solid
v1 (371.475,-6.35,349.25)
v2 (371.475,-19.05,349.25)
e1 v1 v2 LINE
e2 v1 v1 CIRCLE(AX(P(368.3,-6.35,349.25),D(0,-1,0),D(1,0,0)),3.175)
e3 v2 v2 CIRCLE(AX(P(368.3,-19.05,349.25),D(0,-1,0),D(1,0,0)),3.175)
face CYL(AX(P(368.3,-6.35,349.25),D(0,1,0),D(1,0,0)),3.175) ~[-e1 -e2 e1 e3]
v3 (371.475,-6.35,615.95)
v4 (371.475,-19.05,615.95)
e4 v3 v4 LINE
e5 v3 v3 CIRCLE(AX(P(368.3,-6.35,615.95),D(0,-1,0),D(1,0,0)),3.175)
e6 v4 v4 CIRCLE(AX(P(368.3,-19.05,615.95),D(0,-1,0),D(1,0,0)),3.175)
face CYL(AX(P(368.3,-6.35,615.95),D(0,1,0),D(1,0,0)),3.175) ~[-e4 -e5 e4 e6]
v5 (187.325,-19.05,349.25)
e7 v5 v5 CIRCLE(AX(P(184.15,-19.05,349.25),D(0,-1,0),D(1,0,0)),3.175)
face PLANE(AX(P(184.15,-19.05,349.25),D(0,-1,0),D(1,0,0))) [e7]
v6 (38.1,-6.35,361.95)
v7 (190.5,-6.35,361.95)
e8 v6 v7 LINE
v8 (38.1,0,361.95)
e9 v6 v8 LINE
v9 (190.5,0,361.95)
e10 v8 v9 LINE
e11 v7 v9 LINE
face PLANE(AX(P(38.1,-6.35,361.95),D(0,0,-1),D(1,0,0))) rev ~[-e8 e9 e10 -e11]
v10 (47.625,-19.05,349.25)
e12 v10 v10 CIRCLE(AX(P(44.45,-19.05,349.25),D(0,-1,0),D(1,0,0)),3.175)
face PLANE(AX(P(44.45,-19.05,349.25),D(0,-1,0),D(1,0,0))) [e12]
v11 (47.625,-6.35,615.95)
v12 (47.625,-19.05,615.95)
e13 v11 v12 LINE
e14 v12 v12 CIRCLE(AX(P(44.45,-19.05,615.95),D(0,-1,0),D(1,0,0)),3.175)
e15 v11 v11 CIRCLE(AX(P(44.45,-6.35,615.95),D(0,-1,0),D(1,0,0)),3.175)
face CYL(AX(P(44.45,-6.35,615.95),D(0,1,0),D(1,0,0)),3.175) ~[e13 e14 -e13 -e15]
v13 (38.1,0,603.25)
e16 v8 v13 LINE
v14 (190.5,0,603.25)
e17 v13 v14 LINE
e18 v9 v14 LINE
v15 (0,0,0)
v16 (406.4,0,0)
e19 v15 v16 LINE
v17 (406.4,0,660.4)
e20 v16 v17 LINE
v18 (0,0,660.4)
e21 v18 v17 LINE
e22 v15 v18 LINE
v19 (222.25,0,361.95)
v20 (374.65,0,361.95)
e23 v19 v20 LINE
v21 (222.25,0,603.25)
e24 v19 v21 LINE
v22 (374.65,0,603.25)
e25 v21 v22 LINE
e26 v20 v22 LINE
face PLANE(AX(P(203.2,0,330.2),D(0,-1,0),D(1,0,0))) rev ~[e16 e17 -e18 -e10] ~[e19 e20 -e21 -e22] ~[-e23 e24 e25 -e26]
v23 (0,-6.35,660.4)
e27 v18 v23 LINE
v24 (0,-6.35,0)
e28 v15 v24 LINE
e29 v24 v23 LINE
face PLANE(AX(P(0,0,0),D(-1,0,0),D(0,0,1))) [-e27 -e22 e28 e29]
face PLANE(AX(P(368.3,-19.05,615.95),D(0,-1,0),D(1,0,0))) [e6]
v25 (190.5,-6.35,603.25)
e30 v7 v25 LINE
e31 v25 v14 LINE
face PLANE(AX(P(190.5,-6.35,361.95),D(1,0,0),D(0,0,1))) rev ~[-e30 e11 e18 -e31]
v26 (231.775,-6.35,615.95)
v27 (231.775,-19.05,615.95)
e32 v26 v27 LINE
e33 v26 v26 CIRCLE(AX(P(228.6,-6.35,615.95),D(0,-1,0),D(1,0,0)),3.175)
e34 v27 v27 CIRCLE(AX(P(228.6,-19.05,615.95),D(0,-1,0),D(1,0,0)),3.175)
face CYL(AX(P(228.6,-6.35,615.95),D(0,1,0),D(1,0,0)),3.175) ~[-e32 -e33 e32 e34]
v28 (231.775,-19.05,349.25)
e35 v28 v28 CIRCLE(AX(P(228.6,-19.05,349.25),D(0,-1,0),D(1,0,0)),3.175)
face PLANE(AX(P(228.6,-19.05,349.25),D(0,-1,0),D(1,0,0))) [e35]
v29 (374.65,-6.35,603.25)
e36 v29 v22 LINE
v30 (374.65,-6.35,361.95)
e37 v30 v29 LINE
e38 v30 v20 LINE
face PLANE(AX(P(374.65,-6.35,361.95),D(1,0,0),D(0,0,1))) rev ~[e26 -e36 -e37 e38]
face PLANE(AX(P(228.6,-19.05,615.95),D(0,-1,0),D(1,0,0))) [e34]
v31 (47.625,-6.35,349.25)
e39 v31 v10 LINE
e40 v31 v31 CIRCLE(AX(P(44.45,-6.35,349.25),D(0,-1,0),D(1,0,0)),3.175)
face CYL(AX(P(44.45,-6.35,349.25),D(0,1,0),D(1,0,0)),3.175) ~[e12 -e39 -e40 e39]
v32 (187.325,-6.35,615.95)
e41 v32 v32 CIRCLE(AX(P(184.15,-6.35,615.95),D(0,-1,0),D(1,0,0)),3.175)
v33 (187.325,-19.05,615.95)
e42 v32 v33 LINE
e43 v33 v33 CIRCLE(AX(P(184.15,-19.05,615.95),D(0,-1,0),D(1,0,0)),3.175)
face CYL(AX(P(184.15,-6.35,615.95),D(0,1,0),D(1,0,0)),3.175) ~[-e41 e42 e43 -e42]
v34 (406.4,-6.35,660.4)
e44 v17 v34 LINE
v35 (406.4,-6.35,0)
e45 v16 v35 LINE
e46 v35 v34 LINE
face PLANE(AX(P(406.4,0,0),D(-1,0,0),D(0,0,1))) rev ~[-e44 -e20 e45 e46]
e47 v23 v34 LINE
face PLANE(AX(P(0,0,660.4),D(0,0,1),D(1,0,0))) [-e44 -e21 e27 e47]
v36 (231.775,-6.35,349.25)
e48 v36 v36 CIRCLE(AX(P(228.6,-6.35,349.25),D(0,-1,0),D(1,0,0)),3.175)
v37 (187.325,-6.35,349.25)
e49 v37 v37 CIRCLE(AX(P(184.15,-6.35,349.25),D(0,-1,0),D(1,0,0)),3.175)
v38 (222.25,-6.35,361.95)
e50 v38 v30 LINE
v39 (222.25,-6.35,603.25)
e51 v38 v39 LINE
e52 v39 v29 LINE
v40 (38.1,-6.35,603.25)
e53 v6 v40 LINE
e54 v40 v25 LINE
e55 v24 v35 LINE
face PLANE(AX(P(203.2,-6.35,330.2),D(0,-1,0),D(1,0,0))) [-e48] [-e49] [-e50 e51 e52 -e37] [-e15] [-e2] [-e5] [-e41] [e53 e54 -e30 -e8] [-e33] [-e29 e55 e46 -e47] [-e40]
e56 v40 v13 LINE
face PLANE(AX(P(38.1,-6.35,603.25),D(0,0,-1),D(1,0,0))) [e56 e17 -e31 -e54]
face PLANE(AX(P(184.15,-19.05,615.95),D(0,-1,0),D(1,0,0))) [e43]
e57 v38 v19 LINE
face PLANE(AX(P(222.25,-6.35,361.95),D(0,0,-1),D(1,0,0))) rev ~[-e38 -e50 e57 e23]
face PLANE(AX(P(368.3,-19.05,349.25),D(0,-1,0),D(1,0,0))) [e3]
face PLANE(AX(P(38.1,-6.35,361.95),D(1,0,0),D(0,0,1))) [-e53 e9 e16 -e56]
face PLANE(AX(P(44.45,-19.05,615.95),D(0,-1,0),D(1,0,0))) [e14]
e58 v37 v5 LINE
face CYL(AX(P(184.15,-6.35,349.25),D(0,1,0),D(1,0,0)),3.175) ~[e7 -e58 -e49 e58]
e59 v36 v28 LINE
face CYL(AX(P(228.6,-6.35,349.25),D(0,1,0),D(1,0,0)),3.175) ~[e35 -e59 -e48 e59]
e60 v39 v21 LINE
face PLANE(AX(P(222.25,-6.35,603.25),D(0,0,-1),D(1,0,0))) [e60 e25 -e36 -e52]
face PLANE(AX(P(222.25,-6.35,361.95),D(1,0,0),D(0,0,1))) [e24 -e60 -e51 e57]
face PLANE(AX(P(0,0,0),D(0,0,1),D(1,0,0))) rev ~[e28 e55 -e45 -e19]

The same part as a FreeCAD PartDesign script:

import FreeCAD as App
import Part
import Sketcher
from FreeCAD import Vector
Q = App.Units.Quantity


def add_polygon(sketch, points):
    """Adds a closed chain of lines whose ends are joined by coincident constraints."""
    first, n = sketch.GeometryCount, len(points)
    for a, b in zip(points, points[1:] + points[:1]):
        sketch.addGeometry(Part.LineSegment(App.Vector(*a, 0), App.Vector(*b, 0)), False)
    for i in range(n):
        sketch.addConstraint(Sketcher.Constraint("Coincident", first + i, 2, first + (i + 1) % n, 1))

doc = App.newDocument("Part")
body = doc.addObject("PartDesign::Body", "Body")

# Sketch on XZ plane
sketch1 = doc.addObject("Sketcher::SketchObject", "Sketch")
body.addObject(sketch1)
sketch1.AttachmentSupport = (doc.XZ_Plane, [""])
sketch1.MapMode = "FlatFace"
add_polygon(sketch1, [(0, 660.4), (0, 0), (406.4, 0), (406.4, 660.4)])  # lines 0-3
sketch1.addConstraint([
    Sketcher.Constraint("Vertical", 0),
    Sketcher.Constraint("Horizontal", 1),
    Sketcher.Constraint("Vertical", 2),
    Sketcher.Constraint("Horizontal", 3),
    Sketcher.Constraint("Coincident", 0, 2, -1, 1),
    Sketcher.Constraint("DistanceX", 1, 1, 1, 2, Q("16 in")),
    Sketcher.Constraint("DistanceY", 0, 2, 0, 1, Q("26 in")),
])
pad1 = doc.addObject("PartDesign::Pad", "Pad")
body.addObject(pad1)
pad1.Profile = sketch1
pad1.Length = Q("0.25 in")

# Sketch on XZ plane
sketch2 = doc.addObject("Sketcher::SketchObject", "Sketch001")
body.addObject(sketch2)
sketch2.AttachmentSupport = (doc.XZ_Plane, [""])
sketch2.MapMode = "FlatFace"
sketch2.AttachmentOffset = App.Placement(Vector(0, 0, 0.25 * 25.4), App.Rotation())
add_polygon(sketch2, [(38.1, 603.25), (38.1, 361.95), (190.5, 361.95), (190.5, 603.25)])  # lines 0-3
add_polygon(sketch2, [(222.25, 603.25), (222.25, 361.95), (374.65, 361.95), (374.65, 603.25)])  # lines 4-7
sketch2.addConstraint([
    Sketcher.Constraint("Vertical", 0),
    Sketcher.Constraint("Horizontal", 1),
    Sketcher.Constraint("Vertical", 2),
    Sketcher.Constraint("Horizontal", 3),
    Sketcher.Constraint("Vertical", 4),
    Sketcher.Constraint("Horizontal", 5),
    Sketcher.Constraint("Vertical", 6),
    Sketcher.Constraint("Horizontal", 7),
    Sketcher.Constraint("Horizontal", 1, 2, 4, 2),
    Sketcher.Constraint("Horizontal", 3, 2, 6, 2),
    Sketcher.Constraint("Equal", 3, 5),
    Sketcher.Constraint("DistanceX", 1, 1, 1, 2, Q("6 in")),
    Sketcher.Constraint("DistanceY", 0, 2, 0, 1, Q("9.5 in")),
    Sketcher.Constraint("DistanceX", -1, 1, 0, 2, Q("1.5 in")),
    Sketcher.Constraint("DistanceY", -1, 1, 0, 2, Q("14.25 in")),
    Sketcher.Constraint("DistanceX", -1, 1, 4, 2, Q("8.75 in")),
])
pocket1 = doc.addObject("PartDesign::Pocket", "Pocket")
body.addObject(pocket1)
pocket1.Profile = sketch2
pocket1.Type = "ThroughAll"

# Sketch on XZ plane
sketch3 = doc.addObject("Sketcher::SketchObject", "Sketch002")
body.addObject(sketch3)
sketch3.AttachmentSupport = (doc.XZ_Plane, [""])
sketch3.MapMode = "FlatFace"
sketch3.AttachmentOffset = App.Placement(Vector(0, 0, 0.25 * 25.4), App.Rotation())
sketch3.addGeometry([
    Part.Circle(Vector(44.45, 615.95, 0), Vector(0, 0, 1), 3.175),  # 0
    Part.Circle(Vector(184.15, 615.95, 0), Vector(0, 0, 1), 3.175),  # 1
    Part.Circle(Vector(44.45, 349.25, 0), Vector(0, 0, 1), 3.175),  # 2
    Part.Circle(Vector(184.15, 349.25, 0), Vector(0, 0, 1), 3.175),  # 3
    Part.Circle(Vector(228.6, 615.95, 0), Vector(0, 0, 1), 3.175),  # 4
    Part.Circle(Vector(368.3, 615.95, 0), Vector(0, 0, 1), 3.175),  # 5
    Part.Circle(Vector(228.6, 349.25, 0), Vector(0, 0, 1), 3.175),  # 6
    Part.Circle(Vector(368.3, 349.25, 0), Vector(0, 0, 1), 3.175),  # 7
], False)
sketch3.addConstraint([
    Sketcher.Constraint("Equal", 0, 1),
    Sketcher.Constraint("Equal", 1, 2),
    Sketcher.Constraint("Equal", 2, 3),
    Sketcher.Constraint("Equal", 3, 4),
    Sketcher.Constraint("Equal", 4, 5),
    Sketcher.Constraint("Equal", 5, 6),
    Sketcher.Constraint("Equal", 6, 7),
    Sketcher.Constraint("Horizontal", 0, 3, 1, 3),
    Sketcher.Constraint("Horizontal", 2, 3, 3, 3),
    Sketcher.Constraint("Horizontal", 1, 3, 4, 3),
    Sketcher.Constraint("Horizontal", 4, 3, 5, 3),
    Sketcher.Constraint("Horizontal", 3, 3, 6, 3),
    Sketcher.Constraint("Horizontal", 6, 3, 7, 3),
    Sketcher.Constraint("Vertical", 0, 3, 2, 3),
    Sketcher.Constraint("Vertical", 1, 3, 3, 3),
    Sketcher.Constraint("Vertical", 4, 3, 6, 3),
    Sketcher.Constraint("Vertical", 5, 3, 7, 3),
    Sketcher.Constraint("Diameter", 0, Q("0.25 in")),
    Sketcher.Constraint("DistanceX", -1, 1, 4, 3, Q("9 in")),
    Sketcher.Constraint("DistanceX", -1, 1, 5, 3, Q("14.5 in")),
    Sketcher.Constraint("DistanceX", 0, 3, 1, 3, Q("5.5 in")),
    Sketcher.Constraint("DistanceY", 2, 3, 0, 3, Q("10.5 in")),
    Sketcher.Constraint("DistanceX", -1, 1, 0, 3, Q("1.75 in")),
    Sketcher.Constraint("DistanceY", -1, 1, 0, 3, Q("24.25 in")),
])
pad2 = doc.addObject("PartDesign::Pad", "Pad001")
body.addObject(pad2)
pad2.Profile = sketch3
pad2.Length = Q("0.5 in")

doc.recompute()
